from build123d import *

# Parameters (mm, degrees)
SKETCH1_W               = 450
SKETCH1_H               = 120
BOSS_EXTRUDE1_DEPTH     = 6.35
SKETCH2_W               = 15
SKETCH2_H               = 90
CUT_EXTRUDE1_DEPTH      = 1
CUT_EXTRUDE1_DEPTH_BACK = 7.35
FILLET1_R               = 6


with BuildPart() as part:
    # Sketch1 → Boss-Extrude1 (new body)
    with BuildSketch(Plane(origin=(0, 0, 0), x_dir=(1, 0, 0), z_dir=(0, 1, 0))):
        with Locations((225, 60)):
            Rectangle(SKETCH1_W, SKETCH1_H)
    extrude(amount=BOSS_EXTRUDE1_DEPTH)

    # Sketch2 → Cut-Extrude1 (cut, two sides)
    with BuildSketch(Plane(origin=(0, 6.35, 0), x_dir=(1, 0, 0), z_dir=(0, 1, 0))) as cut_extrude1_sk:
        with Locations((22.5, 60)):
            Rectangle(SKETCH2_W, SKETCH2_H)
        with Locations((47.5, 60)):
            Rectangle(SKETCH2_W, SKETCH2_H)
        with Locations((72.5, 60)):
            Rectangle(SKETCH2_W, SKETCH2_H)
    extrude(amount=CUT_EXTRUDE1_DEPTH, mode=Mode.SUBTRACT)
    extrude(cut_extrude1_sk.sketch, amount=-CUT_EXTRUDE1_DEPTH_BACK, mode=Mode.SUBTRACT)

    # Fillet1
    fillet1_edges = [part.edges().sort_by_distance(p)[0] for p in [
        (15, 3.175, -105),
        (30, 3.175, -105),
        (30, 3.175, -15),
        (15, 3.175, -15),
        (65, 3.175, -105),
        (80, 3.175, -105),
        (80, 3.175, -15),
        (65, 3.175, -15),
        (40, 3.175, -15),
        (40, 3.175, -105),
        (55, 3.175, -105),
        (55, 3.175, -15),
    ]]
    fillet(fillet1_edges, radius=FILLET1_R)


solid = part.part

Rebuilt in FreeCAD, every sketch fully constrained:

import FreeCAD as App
import Part
import Sketcher
Q = App.Units.Quantity


def edges_at(feature, points):
    """Names of the edges that pass closest to the given points."""
    edges = feature.Shape.Edges
    near = lambda p: min(range(len(edges)), key=lambda i: edges[i].distToShape(Part.Vertex(*p))[0])
    return sorted({f"Edge{near(p) + 1}" for p in points})

doc = App.newDocument("Part")
params = doc.addObject("Spreadsheet::Sheet", "Params")
for row, (alias, value) in enumerate([
    ("sketch1_width", "450 mm"),
    ("sketch1_height", "120 mm"),
    ("pad1_length", "6.35 mm"),
    ("sketch2_width", "15 mm"),
    ("sketch2_height", "90 mm"),
    ("fillet_radius", "6 mm"),
], start=1):
    params.set(f"A{row}", alias)
    params.set(f"B{row}", "=" + value)
    params.setAlias(f"B{row}", alias)

body = doc.addObject("PartDesign::Body", "Body")

sketch1 = body.newObject("Sketcher::SketchObject", "Sketch")
sketch1.AttachmentSupport = (doc.getObject("XZ_Plane"), [""])
sketch1.MapMode = "FlatFace"
sketch1.addGeometry([
    Part.LineSegment(App.Vector(0, -120, 0), App.Vector(0, 0, 0)),
    Part.LineSegment(App.Vector(0, 0, 0), App.Vector(450, 0, 0)),
    Part.LineSegment(App.Vector(450, 0, 0), App.Vector(450, -120, 0)),
    Part.LineSegment(App.Vector(450, -120, 0), App.Vector(0, -120, 0)),
], False)
sketch1.addConstraint([
    Sketcher.Constraint("Coincident", 0, 2, 1, 1),
    Sketcher.Constraint("Coincident", 1, 2, 2, 1),
    Sketcher.Constraint("Coincident", 2, 2, 3, 1),
    Sketcher.Constraint("Coincident", 3, 2, 0, 1),
    Sketcher.Constraint("Vertical", 0),
    Sketcher.Constraint("Horizontal", 1),
    Sketcher.Constraint("Vertical", 2),
    Sketcher.Constraint("Horizontal", 3),
    Sketcher.Constraint("Coincident", 0, 2, -1, 1),
    Sketcher.Constraint("DistanceX", 1, 1, 1, 2, Q("450 mm")),
    Sketcher.Constraint("DistanceY", 0, 1, 0, 2, Q("120 mm")),
])
sketch1.setExpression("Constraints[9]", "Params.sketch1_width")
sketch1.setExpression("Constraints[10]", "Params.sketch1_height")
pad1 = body.newObject("PartDesign::Pad", "Pad")
pad1.Profile = sketch1
pad1.setExpression("Length", "Params.pad1_length")
pad1.Reversed = True

sketch2 = body.newObject("Sketcher::SketchObject", "Sketch001")
sketch2.AttachmentSupport = (doc.getObject("XZ_Plane"), [""])
sketch2.MapMode = "FlatFace"
sketch2.AttachmentOffset = App.Placement(App.Vector(0, 0, -6.35), App.Rotation())
sketch2.addGeometry([
    Part.LineSegment(App.Vector(15, -105, 0), App.Vector(15, -15, 0)),
    Part.LineSegment(App.Vector(15, -15, 0), App.Vector(30, -15, 0)),
    Part.LineSegment(App.Vector(30, -15, 0), App.Vector(30, -105, 0)),
    Part.LineSegment(App.Vector(30, -105, 0), App.Vector(15, -105, 0)),
    Part.LineSegment(App.Vector(40, -105, 0), App.Vector(40, -15, 0)),
    Part.LineSegment(App.Vector(40, -15, 0), App.Vector(55, -15, 0)),
    Part.LineSegment(App.Vector(55, -15, 0), App.Vector(55, -105, 0)),
    Part.LineSegment(App.Vector(55, -105, 0), App.Vector(40, -105, 0)),
    Part.LineSegment(App.Vector(65, -105, 0), App.Vector(65, -15, 0)),
    Part.LineSegment(App.Vector(65, -15, 0), App.Vector(80, -15, 0)),
    Part.LineSegment(App.Vector(80, -15, 0), App.Vector(80, -105, 0)),
    Part.LineSegment(App.Vector(80, -105, 0), App.Vector(65, -105, 0)),
], False)
sketch2.addConstraint([
    Sketcher.Constraint("Coincident", 0, 2, 1, 1),
    Sketcher.Constraint("Coincident", 1, 2, 2, 1),
    Sketcher.Constraint("Coincident", 2, 2, 3, 1),
    Sketcher.Constraint("Coincident", 3, 2, 0, 1),
    Sketcher.Constraint("Coincident", 4, 2, 5, 1),
    Sketcher.Constraint("Coincident", 5, 2, 6, 1),
    Sketcher.Constraint("Coincident", 6, 2, 7, 1),
    Sketcher.Constraint("Coincident", 7, 2, 4, 1),
    Sketcher.Constraint("Coincident", 8, 2, 9, 1),
    Sketcher.Constraint("Coincident", 9, 2, 10, 1),
    Sketcher.Constraint("Coincident", 10, 2, 11, 1),
    Sketcher.Constraint("Coincident", 11, 2, 8, 1),
    Sketcher.Constraint("Vertical", 0),
    Sketcher.Constraint("Horizontal", 1),
    Sketcher.Constraint("Vertical", 2),
    Sketcher.Constraint("Horizontal", 3),
    Sketcher.Constraint("Vertical", 4),
    Sketcher.Constraint("Horizontal", 5),
    Sketcher.Constraint("Vertical", 6),
    Sketcher.Constraint("Horizontal", 7),
    Sketcher.Constraint("Vertical", 8),
    Sketcher.Constraint("Horizontal", 9),
    Sketcher.Constraint("Vertical", 10),
    Sketcher.Constraint("Horizontal", 11),
    Sketcher.Constraint("Horizontal", 1, 2, 4, 2),
    Sketcher.Constraint("Horizontal", 3, 2, 6, 2),
    Sketcher.Constraint("Horizontal", 5, 2, 8, 2),
    Sketcher.Constraint("Horizontal", 7, 2, 10, 2),
    Sketcher.Constraint("Equal", 3, 5),
    Sketcher.Constraint("Equal", 7, 9),
    Sketcher.Constraint("DistanceX", 1, 1, 1, 2, Q("15 mm")),
    Sketcher.Constraint("DistanceY", 0, 1, 0, 2, Q("90 mm")),
    Sketcher.Constraint("DistanceX", -1, 1, 0, 2, Q("15 mm")),
    Sketcher.Constraint("DistanceY", 0, 2, -1, 1, Q("15 mm")),
    Sketcher.Constraint("DistanceX", -1, 1, 4, 2, Q("40 mm")),
    Sketcher.Constraint("DistanceX", -1, 1, 8, 2, Q("65 mm")),
])
sketch2.setExpression("Constraints[30]", "Params.sketch2_width")
sketch2.setExpression("Constraints[31]", "Params.sketch2_height")
pocket1 = body.newObject("PartDesign::Pocket", "Pocket")
pocket1.Profile = sketch2
pocket1.Type = "ThroughAll"
pocket1.Midplane = True
doc.recompute()

fillet = body.newObject("PartDesign::Fillet", "Fillet")
fillet.Base = (pocket1, edges_at(pocket1, [
    (15, 3.175, -105),
    (30, 3.175, -105),
    (30, 3.175, -15),
    (15, 3.175, -15),
    (65, 3.175, -105),
    (80, 3.175, -105),
    (80, 3.175, -15),
    (65, 3.175, -15),
    (40, 3.175, -15),
    (40, 3.175, -105),
    (55, 3.175, -105),
    (55, 3.175, -15),
]))
fillet.setExpression("Radius", "Params.fillet_radius")

doc.recompute()
